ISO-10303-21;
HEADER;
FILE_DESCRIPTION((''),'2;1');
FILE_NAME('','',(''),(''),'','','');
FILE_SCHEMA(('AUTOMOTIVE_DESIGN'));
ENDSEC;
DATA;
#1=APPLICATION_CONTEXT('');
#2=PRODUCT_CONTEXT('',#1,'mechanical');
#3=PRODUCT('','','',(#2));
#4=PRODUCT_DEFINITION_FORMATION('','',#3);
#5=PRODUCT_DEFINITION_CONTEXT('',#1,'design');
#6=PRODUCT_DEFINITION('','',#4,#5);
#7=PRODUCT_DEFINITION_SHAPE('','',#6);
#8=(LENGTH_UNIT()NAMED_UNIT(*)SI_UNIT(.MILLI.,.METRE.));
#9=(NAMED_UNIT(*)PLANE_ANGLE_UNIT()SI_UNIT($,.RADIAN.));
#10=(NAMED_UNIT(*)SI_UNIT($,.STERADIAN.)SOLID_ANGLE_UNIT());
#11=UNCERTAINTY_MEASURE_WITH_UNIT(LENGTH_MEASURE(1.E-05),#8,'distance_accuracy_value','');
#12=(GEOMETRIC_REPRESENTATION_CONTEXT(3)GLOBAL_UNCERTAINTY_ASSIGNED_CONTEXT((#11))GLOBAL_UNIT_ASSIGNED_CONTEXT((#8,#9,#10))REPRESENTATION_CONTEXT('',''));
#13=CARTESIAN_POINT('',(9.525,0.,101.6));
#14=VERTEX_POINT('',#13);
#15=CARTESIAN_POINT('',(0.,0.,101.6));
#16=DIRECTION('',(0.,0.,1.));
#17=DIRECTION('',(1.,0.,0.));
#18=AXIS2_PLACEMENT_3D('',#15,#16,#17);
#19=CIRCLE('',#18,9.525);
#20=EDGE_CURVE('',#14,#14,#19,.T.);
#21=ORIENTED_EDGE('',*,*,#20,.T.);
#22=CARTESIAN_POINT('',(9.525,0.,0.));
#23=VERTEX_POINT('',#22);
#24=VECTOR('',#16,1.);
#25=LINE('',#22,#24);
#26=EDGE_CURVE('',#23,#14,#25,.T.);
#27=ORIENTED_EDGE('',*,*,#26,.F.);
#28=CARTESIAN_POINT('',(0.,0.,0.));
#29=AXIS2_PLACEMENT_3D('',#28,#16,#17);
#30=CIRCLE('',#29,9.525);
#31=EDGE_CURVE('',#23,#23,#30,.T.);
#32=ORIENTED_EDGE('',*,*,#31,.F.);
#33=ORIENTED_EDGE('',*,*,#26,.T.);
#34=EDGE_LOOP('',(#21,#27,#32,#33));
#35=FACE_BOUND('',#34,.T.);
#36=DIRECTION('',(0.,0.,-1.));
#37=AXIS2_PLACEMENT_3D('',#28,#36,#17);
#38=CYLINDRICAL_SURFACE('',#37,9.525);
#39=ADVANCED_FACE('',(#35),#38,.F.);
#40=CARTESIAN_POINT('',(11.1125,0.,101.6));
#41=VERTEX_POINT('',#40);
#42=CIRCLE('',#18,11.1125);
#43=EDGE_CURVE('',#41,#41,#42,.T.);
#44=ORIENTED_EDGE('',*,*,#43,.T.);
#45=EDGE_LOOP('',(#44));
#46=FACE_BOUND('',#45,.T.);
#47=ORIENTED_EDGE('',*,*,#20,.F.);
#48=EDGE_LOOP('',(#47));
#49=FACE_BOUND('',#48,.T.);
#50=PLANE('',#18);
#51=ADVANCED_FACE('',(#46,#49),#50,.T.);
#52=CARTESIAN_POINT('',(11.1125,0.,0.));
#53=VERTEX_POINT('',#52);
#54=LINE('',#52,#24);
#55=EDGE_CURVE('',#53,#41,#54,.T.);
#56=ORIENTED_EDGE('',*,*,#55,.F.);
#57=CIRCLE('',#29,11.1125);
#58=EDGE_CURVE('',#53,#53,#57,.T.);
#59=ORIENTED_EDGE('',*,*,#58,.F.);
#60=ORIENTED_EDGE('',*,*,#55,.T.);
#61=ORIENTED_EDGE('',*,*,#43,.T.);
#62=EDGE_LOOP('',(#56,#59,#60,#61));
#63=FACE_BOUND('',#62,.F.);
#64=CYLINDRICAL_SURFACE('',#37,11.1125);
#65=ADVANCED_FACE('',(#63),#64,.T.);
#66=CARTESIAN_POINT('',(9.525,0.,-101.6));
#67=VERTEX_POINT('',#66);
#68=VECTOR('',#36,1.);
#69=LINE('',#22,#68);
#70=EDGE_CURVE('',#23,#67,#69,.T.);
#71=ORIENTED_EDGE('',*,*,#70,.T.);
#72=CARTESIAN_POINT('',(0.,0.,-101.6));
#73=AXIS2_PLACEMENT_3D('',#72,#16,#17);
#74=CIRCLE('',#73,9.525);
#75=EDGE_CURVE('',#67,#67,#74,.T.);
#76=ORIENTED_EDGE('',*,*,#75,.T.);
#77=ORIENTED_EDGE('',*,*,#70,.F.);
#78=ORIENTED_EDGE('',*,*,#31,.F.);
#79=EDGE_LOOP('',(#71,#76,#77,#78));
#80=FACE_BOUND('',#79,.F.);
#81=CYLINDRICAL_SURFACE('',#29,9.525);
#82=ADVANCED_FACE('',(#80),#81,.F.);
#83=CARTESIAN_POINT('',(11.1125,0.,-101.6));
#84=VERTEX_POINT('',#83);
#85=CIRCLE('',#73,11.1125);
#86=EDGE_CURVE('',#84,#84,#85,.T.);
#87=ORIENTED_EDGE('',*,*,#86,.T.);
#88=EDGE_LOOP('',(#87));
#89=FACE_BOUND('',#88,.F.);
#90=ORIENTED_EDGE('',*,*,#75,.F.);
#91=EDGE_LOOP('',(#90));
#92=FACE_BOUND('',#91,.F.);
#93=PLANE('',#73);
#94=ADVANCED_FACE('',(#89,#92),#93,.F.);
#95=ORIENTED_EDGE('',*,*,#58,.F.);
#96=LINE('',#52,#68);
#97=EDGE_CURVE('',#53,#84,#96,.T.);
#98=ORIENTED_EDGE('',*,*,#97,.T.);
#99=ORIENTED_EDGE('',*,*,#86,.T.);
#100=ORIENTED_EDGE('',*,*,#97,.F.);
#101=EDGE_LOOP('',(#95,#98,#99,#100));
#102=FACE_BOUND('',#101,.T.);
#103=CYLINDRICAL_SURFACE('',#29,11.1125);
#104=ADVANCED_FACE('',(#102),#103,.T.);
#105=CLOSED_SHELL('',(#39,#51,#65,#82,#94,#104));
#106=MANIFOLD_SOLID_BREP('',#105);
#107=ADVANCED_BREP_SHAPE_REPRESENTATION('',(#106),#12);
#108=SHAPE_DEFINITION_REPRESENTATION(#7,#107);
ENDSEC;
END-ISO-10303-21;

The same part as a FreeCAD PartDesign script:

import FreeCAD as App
import Part
import Sketcher
from FreeCAD import Vector
Q = App.Units.Quantity

doc = App.newDocument("Part")
body = doc.addObject("PartDesign::Body", "Body")

# Sketch on XY plane
sketch1 = doc.addObject("Sketcher::SketchObject", "Sketch")
body.addObject(sketch1)
sketch1.AttachmentSupport = (doc.XY_Plane, [""])
sketch1.MapMode = "FlatFace"
sketch1.addGeometry([
    Part.Circle(Vector(0, 0, 0), Vector(0, 0, 1), 11.1125),
    Part.Circle(Vector(0, 0, 0), Vector(0, 0, 1), 9.525),
], False)
sketch1.addConstraint([
    Sketcher.Constraint("Coincident", 0, 3, -1, 1),
    Sketcher.Constraint("Coincident", 1, 3, -1, 1),
    Sketcher.Constraint("Diameter", 0, Q("0.875 in")),
    Sketcher.Constraint("Diameter", 1, Q("0.75 in")),
])
pad1 = doc.addObject("PartDesign::Pad", "Pad")
body.addObject(pad1)
pad1.Profile = sketch1
pad1.Length = Q("8 in")
pad1.Midplane = True

doc.recompute()
